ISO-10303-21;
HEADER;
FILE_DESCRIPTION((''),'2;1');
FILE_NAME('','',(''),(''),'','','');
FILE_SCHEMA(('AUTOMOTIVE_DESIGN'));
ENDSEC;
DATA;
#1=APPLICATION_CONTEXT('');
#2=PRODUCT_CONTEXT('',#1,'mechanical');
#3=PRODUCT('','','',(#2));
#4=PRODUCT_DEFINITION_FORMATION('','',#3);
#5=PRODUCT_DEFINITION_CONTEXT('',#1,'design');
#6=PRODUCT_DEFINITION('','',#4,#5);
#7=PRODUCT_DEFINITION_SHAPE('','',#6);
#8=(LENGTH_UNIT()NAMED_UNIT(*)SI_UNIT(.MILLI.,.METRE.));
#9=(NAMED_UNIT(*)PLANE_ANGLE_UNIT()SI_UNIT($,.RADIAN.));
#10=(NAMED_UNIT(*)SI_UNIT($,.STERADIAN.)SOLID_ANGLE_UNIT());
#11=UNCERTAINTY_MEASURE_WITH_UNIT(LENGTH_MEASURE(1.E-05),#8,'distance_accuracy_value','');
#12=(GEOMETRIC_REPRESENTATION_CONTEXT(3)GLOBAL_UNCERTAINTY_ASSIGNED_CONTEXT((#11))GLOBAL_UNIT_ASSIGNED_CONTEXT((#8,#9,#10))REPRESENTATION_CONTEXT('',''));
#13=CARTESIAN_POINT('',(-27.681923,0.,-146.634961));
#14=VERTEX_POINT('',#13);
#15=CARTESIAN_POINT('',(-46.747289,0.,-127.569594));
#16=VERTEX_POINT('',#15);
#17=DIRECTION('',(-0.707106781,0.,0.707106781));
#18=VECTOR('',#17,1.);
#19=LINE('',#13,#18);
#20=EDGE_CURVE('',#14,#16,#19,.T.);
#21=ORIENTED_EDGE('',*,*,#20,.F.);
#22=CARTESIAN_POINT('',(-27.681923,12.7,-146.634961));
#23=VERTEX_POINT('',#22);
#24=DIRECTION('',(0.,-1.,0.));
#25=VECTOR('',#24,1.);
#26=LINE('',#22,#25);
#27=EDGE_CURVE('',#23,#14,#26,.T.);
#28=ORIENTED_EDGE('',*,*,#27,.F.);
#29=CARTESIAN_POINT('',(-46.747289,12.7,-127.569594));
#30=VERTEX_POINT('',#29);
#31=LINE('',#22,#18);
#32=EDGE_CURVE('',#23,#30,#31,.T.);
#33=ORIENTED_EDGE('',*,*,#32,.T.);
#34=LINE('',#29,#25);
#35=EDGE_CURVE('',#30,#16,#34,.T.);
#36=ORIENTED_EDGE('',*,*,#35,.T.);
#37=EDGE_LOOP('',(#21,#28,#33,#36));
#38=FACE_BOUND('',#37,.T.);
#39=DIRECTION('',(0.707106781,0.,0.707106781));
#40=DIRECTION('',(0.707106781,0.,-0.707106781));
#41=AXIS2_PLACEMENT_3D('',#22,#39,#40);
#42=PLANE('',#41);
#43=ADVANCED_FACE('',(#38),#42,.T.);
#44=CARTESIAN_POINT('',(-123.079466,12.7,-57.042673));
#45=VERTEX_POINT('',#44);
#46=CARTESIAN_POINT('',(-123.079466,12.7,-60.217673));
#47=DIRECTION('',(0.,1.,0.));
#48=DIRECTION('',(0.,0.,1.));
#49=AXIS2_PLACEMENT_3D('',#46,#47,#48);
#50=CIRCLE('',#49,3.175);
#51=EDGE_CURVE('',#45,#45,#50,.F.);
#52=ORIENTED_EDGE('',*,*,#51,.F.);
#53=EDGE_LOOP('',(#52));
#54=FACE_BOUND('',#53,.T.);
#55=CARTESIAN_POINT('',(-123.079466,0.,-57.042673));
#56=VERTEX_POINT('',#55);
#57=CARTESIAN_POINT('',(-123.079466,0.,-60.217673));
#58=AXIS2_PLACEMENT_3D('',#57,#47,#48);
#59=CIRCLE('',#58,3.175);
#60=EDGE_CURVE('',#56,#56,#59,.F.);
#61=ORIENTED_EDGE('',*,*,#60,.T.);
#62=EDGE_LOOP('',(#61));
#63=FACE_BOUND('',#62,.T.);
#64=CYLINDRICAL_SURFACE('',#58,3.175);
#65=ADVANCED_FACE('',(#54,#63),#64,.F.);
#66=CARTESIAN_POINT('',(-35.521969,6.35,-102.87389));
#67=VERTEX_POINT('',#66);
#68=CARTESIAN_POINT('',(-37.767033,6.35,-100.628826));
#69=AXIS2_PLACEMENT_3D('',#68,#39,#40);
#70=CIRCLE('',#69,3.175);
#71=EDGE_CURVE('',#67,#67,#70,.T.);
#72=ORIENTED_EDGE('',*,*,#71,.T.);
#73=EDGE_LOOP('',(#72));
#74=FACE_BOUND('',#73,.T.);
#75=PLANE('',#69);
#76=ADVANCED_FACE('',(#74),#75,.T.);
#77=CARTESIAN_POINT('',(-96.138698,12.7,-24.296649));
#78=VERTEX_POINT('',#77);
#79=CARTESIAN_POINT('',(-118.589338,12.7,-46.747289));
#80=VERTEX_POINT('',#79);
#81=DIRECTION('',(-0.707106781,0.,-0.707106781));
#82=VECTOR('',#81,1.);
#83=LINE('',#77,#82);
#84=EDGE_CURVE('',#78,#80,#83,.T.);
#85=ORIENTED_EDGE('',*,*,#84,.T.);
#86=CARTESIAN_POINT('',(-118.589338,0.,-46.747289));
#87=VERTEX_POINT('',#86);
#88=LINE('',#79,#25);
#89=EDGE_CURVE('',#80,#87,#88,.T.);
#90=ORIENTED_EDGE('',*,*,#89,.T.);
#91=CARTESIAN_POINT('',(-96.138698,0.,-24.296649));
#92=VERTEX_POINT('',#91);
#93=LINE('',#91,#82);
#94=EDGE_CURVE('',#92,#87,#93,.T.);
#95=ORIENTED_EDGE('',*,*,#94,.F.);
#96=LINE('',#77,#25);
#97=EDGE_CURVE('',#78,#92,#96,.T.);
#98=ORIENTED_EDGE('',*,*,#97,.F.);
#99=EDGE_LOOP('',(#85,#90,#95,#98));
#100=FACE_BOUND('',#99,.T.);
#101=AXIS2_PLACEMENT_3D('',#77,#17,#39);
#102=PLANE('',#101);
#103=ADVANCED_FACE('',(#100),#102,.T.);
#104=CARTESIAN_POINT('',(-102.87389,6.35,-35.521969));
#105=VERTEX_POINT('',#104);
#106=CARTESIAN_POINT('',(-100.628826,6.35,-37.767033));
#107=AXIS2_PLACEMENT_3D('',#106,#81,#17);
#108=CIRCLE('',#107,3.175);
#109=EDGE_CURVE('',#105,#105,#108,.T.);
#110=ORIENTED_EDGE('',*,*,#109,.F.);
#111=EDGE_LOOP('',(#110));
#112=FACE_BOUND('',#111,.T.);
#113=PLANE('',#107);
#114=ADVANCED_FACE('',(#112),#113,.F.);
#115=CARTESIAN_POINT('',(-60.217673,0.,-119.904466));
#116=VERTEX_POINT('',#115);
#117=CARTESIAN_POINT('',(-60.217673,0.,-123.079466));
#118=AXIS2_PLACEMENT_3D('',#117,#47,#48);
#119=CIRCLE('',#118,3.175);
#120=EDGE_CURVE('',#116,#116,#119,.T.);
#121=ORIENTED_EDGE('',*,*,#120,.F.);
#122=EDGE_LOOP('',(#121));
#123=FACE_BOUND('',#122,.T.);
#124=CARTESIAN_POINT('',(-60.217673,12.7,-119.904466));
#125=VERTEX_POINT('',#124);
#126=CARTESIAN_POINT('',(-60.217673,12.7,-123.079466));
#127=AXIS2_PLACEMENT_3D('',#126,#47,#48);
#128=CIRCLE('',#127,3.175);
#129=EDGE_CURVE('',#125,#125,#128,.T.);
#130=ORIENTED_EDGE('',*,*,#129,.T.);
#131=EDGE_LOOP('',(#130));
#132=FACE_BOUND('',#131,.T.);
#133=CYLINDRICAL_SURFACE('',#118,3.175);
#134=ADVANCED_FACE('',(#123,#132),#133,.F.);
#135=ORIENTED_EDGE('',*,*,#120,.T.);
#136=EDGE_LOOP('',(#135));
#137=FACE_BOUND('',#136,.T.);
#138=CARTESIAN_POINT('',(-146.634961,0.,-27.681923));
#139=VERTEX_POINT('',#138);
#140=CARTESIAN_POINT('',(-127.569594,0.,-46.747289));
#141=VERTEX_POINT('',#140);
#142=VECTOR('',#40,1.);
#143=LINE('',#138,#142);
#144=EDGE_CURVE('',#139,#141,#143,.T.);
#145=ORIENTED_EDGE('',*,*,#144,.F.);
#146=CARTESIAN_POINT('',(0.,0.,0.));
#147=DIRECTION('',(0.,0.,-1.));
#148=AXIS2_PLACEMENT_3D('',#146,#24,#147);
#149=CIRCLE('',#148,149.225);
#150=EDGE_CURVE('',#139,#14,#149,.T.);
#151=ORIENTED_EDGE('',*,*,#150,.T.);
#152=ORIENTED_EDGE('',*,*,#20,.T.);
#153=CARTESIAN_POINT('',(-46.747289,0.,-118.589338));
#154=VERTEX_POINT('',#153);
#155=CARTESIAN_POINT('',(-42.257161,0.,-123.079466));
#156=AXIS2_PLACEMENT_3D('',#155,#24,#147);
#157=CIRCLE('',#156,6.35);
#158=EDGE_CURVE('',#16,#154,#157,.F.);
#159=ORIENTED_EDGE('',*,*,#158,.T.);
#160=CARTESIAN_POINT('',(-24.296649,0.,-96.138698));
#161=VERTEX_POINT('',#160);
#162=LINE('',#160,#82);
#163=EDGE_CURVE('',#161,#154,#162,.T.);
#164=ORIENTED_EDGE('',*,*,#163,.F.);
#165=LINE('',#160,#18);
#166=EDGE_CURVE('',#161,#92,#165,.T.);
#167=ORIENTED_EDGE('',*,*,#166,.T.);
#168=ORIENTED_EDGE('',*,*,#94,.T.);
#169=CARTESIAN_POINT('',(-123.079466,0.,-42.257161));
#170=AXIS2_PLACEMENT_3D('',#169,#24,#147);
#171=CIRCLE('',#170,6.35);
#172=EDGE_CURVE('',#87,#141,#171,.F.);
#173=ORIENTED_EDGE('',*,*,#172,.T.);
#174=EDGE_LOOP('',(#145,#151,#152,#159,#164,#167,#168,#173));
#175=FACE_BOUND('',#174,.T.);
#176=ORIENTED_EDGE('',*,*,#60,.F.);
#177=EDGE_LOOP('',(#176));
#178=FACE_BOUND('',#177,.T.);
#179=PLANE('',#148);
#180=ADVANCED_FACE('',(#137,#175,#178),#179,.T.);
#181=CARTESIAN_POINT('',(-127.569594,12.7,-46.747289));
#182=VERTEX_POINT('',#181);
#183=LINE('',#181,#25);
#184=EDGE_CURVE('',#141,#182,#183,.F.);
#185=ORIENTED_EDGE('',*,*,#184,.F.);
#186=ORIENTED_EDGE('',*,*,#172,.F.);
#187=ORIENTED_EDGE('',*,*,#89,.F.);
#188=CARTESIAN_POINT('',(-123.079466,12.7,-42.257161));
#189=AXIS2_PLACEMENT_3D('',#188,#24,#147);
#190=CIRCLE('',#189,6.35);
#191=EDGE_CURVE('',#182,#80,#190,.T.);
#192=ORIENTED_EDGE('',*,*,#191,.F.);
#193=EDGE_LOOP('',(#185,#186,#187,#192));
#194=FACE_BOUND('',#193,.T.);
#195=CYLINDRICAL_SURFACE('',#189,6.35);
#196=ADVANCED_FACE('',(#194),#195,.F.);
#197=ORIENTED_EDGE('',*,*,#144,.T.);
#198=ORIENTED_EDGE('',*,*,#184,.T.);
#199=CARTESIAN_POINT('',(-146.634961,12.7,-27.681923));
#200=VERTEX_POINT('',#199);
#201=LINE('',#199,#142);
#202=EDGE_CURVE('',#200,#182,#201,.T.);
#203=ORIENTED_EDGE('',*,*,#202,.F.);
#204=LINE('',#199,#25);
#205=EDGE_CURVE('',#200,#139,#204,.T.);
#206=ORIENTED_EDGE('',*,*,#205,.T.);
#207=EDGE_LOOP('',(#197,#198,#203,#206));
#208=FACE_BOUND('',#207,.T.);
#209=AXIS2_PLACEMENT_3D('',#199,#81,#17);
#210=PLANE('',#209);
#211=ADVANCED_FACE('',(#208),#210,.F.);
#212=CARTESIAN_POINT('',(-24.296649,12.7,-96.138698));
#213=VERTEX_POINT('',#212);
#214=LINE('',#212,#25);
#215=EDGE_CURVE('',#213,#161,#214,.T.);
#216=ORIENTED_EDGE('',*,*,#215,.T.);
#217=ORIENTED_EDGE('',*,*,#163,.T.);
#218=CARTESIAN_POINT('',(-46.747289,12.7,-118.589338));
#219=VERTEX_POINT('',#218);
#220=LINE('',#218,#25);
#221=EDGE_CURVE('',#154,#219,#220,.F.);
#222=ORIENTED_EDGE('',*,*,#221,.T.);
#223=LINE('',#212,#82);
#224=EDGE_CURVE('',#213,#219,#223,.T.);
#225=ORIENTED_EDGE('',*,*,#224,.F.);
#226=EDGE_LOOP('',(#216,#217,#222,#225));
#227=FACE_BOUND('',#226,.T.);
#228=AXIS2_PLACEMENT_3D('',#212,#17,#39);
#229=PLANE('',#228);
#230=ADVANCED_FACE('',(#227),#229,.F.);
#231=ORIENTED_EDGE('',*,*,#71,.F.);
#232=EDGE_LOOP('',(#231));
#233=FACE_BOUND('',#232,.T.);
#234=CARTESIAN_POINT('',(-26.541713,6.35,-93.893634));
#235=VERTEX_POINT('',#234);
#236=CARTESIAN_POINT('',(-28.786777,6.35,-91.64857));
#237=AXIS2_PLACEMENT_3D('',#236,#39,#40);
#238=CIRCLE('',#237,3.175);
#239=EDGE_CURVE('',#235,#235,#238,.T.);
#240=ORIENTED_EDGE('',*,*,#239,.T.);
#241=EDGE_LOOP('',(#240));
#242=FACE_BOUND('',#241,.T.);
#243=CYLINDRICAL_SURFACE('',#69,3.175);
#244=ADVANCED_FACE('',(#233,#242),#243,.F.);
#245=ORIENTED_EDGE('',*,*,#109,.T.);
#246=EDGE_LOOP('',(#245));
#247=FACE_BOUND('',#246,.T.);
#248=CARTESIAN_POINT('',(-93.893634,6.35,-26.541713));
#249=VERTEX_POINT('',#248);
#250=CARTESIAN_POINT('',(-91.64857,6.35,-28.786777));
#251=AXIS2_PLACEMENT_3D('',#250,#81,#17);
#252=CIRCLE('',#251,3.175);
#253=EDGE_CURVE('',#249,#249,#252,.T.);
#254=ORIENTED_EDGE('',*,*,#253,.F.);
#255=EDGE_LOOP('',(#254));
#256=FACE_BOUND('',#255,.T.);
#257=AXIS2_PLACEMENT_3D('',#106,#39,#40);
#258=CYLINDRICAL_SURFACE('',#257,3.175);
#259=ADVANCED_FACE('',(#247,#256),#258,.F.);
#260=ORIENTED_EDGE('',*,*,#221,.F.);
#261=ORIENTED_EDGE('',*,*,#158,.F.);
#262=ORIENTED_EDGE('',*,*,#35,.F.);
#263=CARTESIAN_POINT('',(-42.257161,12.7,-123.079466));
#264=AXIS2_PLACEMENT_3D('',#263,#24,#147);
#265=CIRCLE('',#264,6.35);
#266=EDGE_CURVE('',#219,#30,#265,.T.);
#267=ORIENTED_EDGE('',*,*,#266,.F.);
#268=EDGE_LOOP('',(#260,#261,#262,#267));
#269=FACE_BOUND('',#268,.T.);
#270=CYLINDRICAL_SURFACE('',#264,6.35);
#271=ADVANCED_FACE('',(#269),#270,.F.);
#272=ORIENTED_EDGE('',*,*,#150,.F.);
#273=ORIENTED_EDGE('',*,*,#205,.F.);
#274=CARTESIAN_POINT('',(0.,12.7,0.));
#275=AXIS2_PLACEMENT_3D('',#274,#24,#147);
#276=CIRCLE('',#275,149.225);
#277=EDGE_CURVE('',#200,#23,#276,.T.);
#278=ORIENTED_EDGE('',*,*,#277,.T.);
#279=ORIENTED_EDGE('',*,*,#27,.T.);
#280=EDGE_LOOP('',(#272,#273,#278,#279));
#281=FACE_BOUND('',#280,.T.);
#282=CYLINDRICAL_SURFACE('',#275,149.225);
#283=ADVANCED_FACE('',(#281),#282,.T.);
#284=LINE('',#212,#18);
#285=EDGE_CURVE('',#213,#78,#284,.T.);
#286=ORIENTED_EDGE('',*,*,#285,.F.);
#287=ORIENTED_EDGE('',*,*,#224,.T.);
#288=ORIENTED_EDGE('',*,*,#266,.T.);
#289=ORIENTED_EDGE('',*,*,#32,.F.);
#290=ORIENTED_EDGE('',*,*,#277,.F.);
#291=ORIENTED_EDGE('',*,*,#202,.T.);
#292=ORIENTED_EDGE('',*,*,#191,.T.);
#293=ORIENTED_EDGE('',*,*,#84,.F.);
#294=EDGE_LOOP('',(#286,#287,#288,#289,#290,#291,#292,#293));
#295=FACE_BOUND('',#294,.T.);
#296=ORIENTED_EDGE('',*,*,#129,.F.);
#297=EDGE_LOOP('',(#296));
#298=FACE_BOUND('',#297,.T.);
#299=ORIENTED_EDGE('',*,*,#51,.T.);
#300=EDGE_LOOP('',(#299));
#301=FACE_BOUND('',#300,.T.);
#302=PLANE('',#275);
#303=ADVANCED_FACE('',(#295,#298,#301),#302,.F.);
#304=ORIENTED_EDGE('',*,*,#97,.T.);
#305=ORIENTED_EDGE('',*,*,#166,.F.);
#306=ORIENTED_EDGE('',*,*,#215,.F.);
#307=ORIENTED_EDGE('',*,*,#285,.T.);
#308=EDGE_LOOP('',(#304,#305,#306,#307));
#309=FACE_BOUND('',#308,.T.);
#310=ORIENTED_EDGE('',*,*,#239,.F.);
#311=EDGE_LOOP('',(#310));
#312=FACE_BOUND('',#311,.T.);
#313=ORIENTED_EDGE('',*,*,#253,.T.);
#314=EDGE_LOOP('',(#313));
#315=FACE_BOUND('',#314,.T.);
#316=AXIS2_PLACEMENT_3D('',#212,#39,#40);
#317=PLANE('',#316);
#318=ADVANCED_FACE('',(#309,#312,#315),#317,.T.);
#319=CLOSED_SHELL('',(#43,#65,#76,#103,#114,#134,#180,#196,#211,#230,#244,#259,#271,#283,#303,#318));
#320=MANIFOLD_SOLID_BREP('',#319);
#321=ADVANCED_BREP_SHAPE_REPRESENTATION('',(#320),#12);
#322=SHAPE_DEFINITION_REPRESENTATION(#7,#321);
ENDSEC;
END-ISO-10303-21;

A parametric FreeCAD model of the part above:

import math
import FreeCAD as App
import Part
import Sketcher
Q = App.Units.Quantity


def edges_at(feature, points):
    """Names of the edges that pass closest to the given points."""
    edges = feature.Shape.Edges
    near = lambda p: min(range(len(edges)), key=lambda i: edges[i].distToShape(Part.Vertex(*p))[0])
    return sorted({f"Edge{near(p) + 1}" for p in points})

doc = App.newDocument("Part")
body = doc.addObject("PartDesign::Body", "Body")

# Sketch on XZ plane
sketch1 = body.newObject("Sketcher::SketchObject", "Sketch")
sketch1.AttachmentSupport = (doc.getObject("XZ_Plane"), [""])
sketch1.MapMode = "FlatFace"
sketch1.addGeometry(Part.LineSegment(App.Vector(-51.237417, -123.079466, 0), App.Vector(-27.681923, -146.634961, 0)), False)
sketch1.addGeometry(Part.ArcOfCircle(Part.Circle(App.Vector(0, 0, 0), App.Vector(0, 0, 1), 149.225), math.radians(-169.309447), math.radians(-100.690553)), False)
sketch1.addGeometry(Part.LineSegment(App.Vector(-146.634961, -27.681923, 0), App.Vector(-123.079466, -51.237417, 0)), False)
sketch1.addGeometry(Part.LineSegment(App.Vector(-123.079466, -51.237417, 0), App.Vector(-96.138698, -24.296649, 0)), False)
sketch1.addGeometry(Part.LineSegment(App.Vector(-96.138698, -24.296649, 0), App.Vector(-24.296649, -96.138698, 0)), False)
sketch1.addGeometry(Part.LineSegment(App.Vector(-24.296649, -96.138698, 0), App.Vector(-51.237417, -123.079466, 0)), False)
sketch1.addConstraint(Sketcher.Constraint("Coincident", 0, 2, 1, 2))
sketch1.addConstraint(Sketcher.Constraint("Coincident", 1, 1, 2, 1))
sketch1.addConstraint(Sketcher.Constraint("Coincident", 2, 2, 3, 1))
sketch1.addConstraint(Sketcher.Constraint("Coincident", 3, 2, 4, 1))
sketch1.addConstraint(Sketcher.Constraint("Coincident", 4, 2, 5, 1))
sketch1.addConstraint(Sketcher.Constraint("Coincident", 5, 2, 0, 1))
sketch1.addConstraint(Sketcher.Constraint("Coincident", 1, 3, -1, 1))
sketch1.addConstraint(Sketcher.Constraint("Parallel", 0, 2))
sketch1.addConstraint(Sketcher.Constraint("Perpendicular", 2, 3))
sketch1.addConstraint(Sketcher.Constraint("Perpendicular", 3, 4))
sketch1.addConstraint(Sketcher.Constraint("Perpendicular", 4, 5))
sketch1.addConstraint(Sketcher.Constraint("Equal", 0, 2))
sketch1.addConstraint(Sketcher.Constraint("Equal", 3, 5))
sketch1.addConstraint(Sketcher.Constraint("Distance", 4, Q("4 in")))
sketch1.addConstraint(Sketcher.Constraint("Angle", 0, Q("-45 deg")))
sketch1.addConstraint(Sketcher.Constraint("Radius", 1, Q("5.875 in")))
sketch1.addConstraint(Sketcher.Constraint("Distance", 3, Q("1.5 in")))
sketch1.addConstraint(Sketcher.Constraint("Distance", 0, Q("33.3125 mm")))
pad1 = body.newObject("PartDesign::Pad", "Pad")
pad1.Profile = sketch1
pad1.Length = Q("0.5 in")
pad1.Reversed = True

# Sketch on XZ plane
sketch2 = body.newObject("Sketcher::SketchObject", "Sketch001")
sketch2.AttachmentSupport = (doc.getObject("XZ_Plane"), [""])
sketch2.MapMode = "FlatFace"
sketch2.AttachmentOffset = App.Placement(App.Vector(0, 0, -0.5 * 25.4), App.Rotation())
sketch2.addGeometry(Part.Circle(App.Vector(-60.217673, -123.079466, 0), App.Vector(0, 0, 1), 3.175), False)
sketch2.addGeometry(Part.Circle(App.Vector(-123.079466, -60.217673, 0), App.Vector(0, 0, 1), 3.175), False)
sketch2.addConstraint(Sketcher.Constraint("Equal", 0, 1))
sketch2.addConstraint(Sketcher.Constraint("Diameter", 0, Q("0.25 in")))
sketch2.addConstraint(Sketcher.Constraint("DistanceX", 0, 3, -1, 1, Q("60.217673 mm")))
sketch2.addConstraint(Sketcher.Constraint("DistanceY", 0, 3, -1, 1, Q("123.079466 mm")))
sketch2.addConstraint(Sketcher.Constraint("DistanceX", 1, 3, -1, 1, Q("123.079466 mm")))
sketch2.addConstraint(Sketcher.Constraint("DistanceY", 1, 3, -1, 1, Q("60.217673 mm")))
pocket1 = body.newObject("PartDesign::Pocket", "Pocket")
pocket1.Profile = sketch2
pocket1.Length = Q("0.5 in")
pocket1.Reversed = True
doc.recompute()

fillet = body.newObject("PartDesign::Fillet", "Fillet")
fillet.Base = (pocket1, edges_at(pocket1, [(-123.079, 6.35, -51.237), (-51.237, 6.35, -123.079)]))
fillet.Radius = Q("0.25 in")

# Sketch on an angled plane
sketch3 = body.newObject("Sketcher::SketchObject", "Sketch002")
sketch3.Placement = App.Placement(App.Vector(-60.217673, 0, -60.217673), App.Rotation(App.Vector(0.707106781, 0, -0.707106781), App.Vector(0, 0.999999999, 0), App.Vector(0.707106781, 0, 0.707106781), "ZXY"))
sketch3.addGeometry(Part.Circle(App.Vector(44.45, 6.35, 0), App.Vector(0, 0, 1), 3.175), False)
sketch3.addGeometry(Part.Circle(App.Vector(-44.45, 6.35, 0), App.Vector(0, 0, 1), 3.175), False)
sketch3.addConstraint(Sketcher.Constraint("Equal", 0, 1))
sketch3.addConstraint(Sketcher.Constraint("Symmetric", 0, 3, 1, 3, -2))
sketch3.addConstraint(Sketcher.Constraint("Diameter", 0, Q("0.25 in")))
sketch3.addConstraint(Sketcher.Constraint("DistanceX", 1, 3, 0, 3, Q("3.5 in")))
sketch3.addConstraint(Sketcher.Constraint("DistanceY", -1, 1, 0, 3, Q("0.25 in")))
pocket2 = body.newObject("PartDesign::Pocket", "Pocket001")
pocket2.Profile = sketch3
pocket2.Length = Q("0.5 in")

doc.recompute()
